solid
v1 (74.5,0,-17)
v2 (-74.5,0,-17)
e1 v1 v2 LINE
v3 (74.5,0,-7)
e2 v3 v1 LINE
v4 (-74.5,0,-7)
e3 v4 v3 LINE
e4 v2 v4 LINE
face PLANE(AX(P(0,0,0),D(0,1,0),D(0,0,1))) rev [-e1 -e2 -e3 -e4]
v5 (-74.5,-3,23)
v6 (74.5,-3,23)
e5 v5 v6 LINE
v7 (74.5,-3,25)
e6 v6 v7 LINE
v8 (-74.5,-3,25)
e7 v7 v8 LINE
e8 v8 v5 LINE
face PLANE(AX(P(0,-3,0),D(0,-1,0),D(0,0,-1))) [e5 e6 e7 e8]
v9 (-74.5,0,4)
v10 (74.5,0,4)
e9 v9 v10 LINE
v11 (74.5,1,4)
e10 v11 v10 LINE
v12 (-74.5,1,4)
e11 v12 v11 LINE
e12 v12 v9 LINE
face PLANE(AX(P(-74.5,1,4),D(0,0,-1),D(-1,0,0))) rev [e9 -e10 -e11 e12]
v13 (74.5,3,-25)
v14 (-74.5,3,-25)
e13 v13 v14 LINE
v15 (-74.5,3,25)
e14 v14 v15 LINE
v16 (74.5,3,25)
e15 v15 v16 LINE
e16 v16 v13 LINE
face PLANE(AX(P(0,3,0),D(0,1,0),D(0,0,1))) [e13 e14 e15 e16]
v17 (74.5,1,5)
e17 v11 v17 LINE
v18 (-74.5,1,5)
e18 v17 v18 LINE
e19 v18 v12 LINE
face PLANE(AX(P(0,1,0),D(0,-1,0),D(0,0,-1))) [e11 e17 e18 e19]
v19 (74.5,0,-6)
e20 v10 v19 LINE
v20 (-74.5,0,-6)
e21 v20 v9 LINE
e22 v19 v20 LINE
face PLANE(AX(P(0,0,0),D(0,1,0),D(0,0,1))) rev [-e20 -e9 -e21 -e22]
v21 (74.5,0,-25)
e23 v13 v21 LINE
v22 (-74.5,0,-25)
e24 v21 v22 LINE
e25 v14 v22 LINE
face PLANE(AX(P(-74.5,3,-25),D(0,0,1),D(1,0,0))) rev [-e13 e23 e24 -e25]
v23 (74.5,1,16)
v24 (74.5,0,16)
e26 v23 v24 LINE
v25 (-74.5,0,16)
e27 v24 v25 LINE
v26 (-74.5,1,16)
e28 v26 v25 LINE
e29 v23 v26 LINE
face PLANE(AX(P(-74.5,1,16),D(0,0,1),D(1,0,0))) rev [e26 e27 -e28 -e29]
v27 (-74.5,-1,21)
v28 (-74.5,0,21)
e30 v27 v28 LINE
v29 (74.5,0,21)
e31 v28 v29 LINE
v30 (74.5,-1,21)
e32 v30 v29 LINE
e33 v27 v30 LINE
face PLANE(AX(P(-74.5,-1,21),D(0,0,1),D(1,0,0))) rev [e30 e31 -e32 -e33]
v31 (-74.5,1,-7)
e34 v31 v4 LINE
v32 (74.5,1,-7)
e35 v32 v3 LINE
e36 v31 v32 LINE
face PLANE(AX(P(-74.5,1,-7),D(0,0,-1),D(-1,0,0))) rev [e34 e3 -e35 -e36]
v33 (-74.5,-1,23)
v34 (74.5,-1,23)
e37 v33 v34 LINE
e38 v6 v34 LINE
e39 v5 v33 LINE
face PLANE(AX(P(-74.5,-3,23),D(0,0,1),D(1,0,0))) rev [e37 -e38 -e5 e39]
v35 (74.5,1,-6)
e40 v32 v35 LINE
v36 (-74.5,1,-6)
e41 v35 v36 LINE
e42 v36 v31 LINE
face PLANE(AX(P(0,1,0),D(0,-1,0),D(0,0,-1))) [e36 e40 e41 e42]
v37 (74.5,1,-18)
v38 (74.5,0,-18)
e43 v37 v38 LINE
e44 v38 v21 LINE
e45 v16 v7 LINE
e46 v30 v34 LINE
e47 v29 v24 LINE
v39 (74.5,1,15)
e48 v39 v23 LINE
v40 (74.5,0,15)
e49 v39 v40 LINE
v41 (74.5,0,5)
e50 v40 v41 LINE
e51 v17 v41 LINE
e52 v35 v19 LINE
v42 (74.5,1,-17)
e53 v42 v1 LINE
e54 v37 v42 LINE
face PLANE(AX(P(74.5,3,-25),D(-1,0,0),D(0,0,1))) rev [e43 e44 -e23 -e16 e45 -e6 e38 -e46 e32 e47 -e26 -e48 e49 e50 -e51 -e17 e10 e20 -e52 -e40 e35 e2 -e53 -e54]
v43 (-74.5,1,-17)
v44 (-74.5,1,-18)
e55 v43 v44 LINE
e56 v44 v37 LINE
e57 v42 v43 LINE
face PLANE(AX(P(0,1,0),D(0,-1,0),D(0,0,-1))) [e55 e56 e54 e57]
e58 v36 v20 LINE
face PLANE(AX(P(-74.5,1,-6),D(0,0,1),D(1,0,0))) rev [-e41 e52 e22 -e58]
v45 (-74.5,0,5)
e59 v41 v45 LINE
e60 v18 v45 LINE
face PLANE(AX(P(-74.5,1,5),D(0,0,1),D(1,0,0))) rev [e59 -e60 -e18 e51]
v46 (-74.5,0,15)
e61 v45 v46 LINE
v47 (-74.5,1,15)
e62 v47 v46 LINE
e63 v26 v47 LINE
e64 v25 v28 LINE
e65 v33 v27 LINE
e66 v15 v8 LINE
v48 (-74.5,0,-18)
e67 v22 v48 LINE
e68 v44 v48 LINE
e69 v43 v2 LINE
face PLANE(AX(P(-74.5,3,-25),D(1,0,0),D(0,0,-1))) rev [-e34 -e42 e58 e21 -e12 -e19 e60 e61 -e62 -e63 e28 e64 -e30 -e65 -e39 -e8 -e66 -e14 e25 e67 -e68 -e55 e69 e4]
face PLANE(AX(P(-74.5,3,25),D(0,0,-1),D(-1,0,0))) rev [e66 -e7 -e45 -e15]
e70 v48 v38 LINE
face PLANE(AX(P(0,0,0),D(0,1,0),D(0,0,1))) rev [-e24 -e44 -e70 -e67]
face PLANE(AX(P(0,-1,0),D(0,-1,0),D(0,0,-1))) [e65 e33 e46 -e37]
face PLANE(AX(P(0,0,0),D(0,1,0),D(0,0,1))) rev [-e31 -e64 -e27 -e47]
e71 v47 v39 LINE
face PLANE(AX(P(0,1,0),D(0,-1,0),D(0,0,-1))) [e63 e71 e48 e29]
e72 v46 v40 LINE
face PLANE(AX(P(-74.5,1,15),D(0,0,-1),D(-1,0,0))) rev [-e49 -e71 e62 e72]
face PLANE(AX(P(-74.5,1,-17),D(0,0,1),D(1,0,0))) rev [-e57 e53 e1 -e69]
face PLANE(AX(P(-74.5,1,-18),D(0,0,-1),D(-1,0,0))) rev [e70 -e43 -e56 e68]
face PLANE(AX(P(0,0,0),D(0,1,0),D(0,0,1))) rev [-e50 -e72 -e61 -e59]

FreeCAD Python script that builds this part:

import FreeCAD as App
import Part
import Sketcher

V = App.Vector
Q = App.Units.Quantity


def add_polygon(sketch, points):
    """Adds a closed chain of lines whose ends are joined by coincident constraints."""
    first, n = sketch.GeometryCount, len(points)
    for a, b in zip(points, points[1:] + points[:1]):
        sketch.addGeometry(Part.LineSegment(App.Vector(*a, 0), App.Vector(*b, 0)), False)
    for i in range(n):
        sketch.addConstraint(Sketcher.Constraint("Coincident", first + i, 2, first + (i + 1) % n, 1))

doc = App.newDocument("Part")
body = doc.addObject("PartDesign::Body", "Body")

# Sketch on XZ plane
sketch1 = body.newObject("Sketcher::SketchObject", "Sketch")
sketch1.AttachmentSupport = (doc.getObject("XZ_Plane"), [""])
sketch1.MapMode = "FlatFace"
add_polygon(sketch1, [(-74, -25), (-74, 25), (74, 25), (74, -25)])  # lines 0-3
sketch1.addConstraint([
    Sketcher.Constraint("Vertical", 0),
    Sketcher.Constraint("Horizontal", 1),
    Sketcher.Constraint("Vertical", 2),
    Sketcher.Constraint("Horizontal", 3),
    Sketcher.Constraint("Symmetric", 0, 2, 2, 2, -1, 1),
    Sketcher.Constraint("DistanceX", 1, 1, 1, 2, Q("149 mm")),
    Sketcher.Constraint("DistanceY", 0, 1, 0, 2, Q("50 mm")),
])
pad1 = body.newObject("PartDesign::Pad", "Pad")
pad1.Profile = sketch1
pad1.Length = 3
pad1.Reversed = True

# Sketch on XZ plane
sketch2 = body.newObject("Sketcher::SketchObject", "Sketch001")
sketch2.AttachmentSupport = (doc.getObject("XZ_Plane"), [""])
sketch2.MapMode = "FlatFace"
add_polygon(sketch2, [(-74.5, -17), (-74.5, -18), (74.5, -18), (74.5, -17)])  # lines 0-3
add_polygon(sketch2, [(-74.5, -6), (-74.5, -7), (74.5, -7), (74.5, -6)])  # lines 4-7
add_polygon(sketch2, [(-74.5, 5), (-74.5, 4), (74.5, 4), (74.5, 5)])  # lines 8-11
add_polygon(sketch2, [(-74.5, 16), (-74.5, 15), (74.5, 15), (74.5, 16)])  # lines 12-15
sketch2.addConstraint([
    Sketcher.Constraint("Vertical", 0),
    Sketcher.Constraint("Horizontal", 1),
    Sketcher.Constraint("Vertical", 2),
    Sketcher.Constraint("Horizontal", 3),
    Sketcher.Constraint("Vertical", 4),
    Sketcher.Constraint("Horizontal", 5),
    Sketcher.Constraint("Vertical", 6),
    Sketcher.Constraint("Horizontal", 7),
    Sketcher.Constraint("Vertical", 8),
    Sketcher.Constraint("Horizontal", 9),
    Sketcher.Constraint("Vertical", 10),
    Sketcher.Constraint("Horizontal", 11),
    Sketcher.Constraint("Vertical", 12),
    Sketcher.Constraint("Horizontal", 13),
    Sketcher.Constraint("Vertical", 14),
    Sketcher.Constraint("Horizontal", 15),
    Sketcher.Constraint("Vertical", 3, 2, 4, 2),
    Sketcher.Constraint("Vertical", 2, 2, 5, 2),
    Sketcher.Constraint("Vertical", 7, 2, 8, 2),
    Sketcher.Constraint("Vertical", 6, 2, 9, 2),
    Sketcher.Constraint("Vertical", 11, 2, 12, 2),
    Sketcher.Constraint("Vertical", 10, 2, 13, 2),
    Sketcher.Constraint("Equal", 2, 4),
    Sketcher.Constraint("Equal", 6, 8),
    Sketcher.Constraint("Equal", 10, 12),
    Sketcher.Constraint("DistanceX", 1, 1, 1, 2, Q("149 mm")),
    Sketcher.Constraint("DistanceY", 0, 2, 0, 1, Q("1 mm")),
    Sketcher.Constraint("DistanceY", 0, 2, -1, 1, Q("18 mm")),
    Sketcher.Constraint("DistanceY", 4, 2, -1, 1, Q("7 mm")),
    Sketcher.Constraint("DistanceY", -1, 1, 8, 2, Q("4 mm")),
    Sketcher.Constraint("DistanceY", -1, 1, 12, 2, Q("15 mm")),
    Sketcher.Constraint("DistanceX", 0, 2, -1, 1, Q("74.5 mm")),
])
pocket1 = body.newObject("PartDesign::Pocket", "Pocket")
pocket1.Profile = sketch2
pocket1.Length = 1

# Sketch on XZ plane
sketch3 = body.newObject("Sketcher::SketchObject", "Sketch002")
sketch3.AttachmentSupport = (doc.getObject("XZ_Plane"), [""])
sketch3.MapMode = "FlatFace"
add_polygon(sketch3, [(-74.5, 25), (-74.5, 21), (74.5, 21), (74.5, 25)])  # lines 0-3
sketch3.addConstraint([
    Sketcher.Constraint("Vertical", 0),
    Sketcher.Constraint("Horizontal", 1),
    Sketcher.Constraint("Vertical", 2),
    Sketcher.Constraint("Horizontal", 3),
    Sketcher.Constraint("DistanceX", 1, 1, 1, 2, Q("149 mm")),
    Sketcher.Constraint("DistanceY", 0, 2, 0, 1, Q("4 mm")),
    Sketcher.Constraint("DistanceY", -1, 1, 0, 2, Q("21 mm")),
    Sketcher.Constraint("DistanceX", 0, 2, -1, 1, Q("74.5 mm")),
])
pad2 = body.newObject("PartDesign::Pad", "Pad001")
pad2.Profile = sketch3
pad2.Length = 1

# Sketch on XZ plane
sketch4 = body.newObject("Sketcher::SketchObject", "Sketch003")
sketch4.AttachmentSupport = (doc.getObject("XZ_Plane"), [""])
sketch4.MapMode = "FlatFace"
sketch4.AttachmentOffset = App.Placement(V(0, 0, 1), App.Rotation())
add_polygon(sketch4, [(-74.5, 25), (-74.5, 23), (74.5, 23), (74.5, 25)])  # lines 0-3
sketch4.addConstraint([
    Sketcher.Constraint("Vertical", 0),
    Sketcher.Constraint("Horizontal", 1),
    Sketcher.Constraint("Vertical", 2),
    Sketcher.Constraint("Horizontal", 3),
    Sketcher.Constraint("DistanceX", 1, 1, 1, 2, Q("149 mm")),
    Sketcher.Constraint("DistanceY", 0, 2, 0, 1, Q("2 mm")),
    Sketcher.Constraint("DistanceY", -1, 1, 0, 2, Q("23 mm")),
    Sketcher.Constraint("DistanceX", 0, 2, -1, 1, Q("74.5 mm")),
])
pad3 = body.newObject("PartDesign::Pad", "Pad002")
pad3.Profile = sketch4
pad3.Length = 2

doc.recompute()
